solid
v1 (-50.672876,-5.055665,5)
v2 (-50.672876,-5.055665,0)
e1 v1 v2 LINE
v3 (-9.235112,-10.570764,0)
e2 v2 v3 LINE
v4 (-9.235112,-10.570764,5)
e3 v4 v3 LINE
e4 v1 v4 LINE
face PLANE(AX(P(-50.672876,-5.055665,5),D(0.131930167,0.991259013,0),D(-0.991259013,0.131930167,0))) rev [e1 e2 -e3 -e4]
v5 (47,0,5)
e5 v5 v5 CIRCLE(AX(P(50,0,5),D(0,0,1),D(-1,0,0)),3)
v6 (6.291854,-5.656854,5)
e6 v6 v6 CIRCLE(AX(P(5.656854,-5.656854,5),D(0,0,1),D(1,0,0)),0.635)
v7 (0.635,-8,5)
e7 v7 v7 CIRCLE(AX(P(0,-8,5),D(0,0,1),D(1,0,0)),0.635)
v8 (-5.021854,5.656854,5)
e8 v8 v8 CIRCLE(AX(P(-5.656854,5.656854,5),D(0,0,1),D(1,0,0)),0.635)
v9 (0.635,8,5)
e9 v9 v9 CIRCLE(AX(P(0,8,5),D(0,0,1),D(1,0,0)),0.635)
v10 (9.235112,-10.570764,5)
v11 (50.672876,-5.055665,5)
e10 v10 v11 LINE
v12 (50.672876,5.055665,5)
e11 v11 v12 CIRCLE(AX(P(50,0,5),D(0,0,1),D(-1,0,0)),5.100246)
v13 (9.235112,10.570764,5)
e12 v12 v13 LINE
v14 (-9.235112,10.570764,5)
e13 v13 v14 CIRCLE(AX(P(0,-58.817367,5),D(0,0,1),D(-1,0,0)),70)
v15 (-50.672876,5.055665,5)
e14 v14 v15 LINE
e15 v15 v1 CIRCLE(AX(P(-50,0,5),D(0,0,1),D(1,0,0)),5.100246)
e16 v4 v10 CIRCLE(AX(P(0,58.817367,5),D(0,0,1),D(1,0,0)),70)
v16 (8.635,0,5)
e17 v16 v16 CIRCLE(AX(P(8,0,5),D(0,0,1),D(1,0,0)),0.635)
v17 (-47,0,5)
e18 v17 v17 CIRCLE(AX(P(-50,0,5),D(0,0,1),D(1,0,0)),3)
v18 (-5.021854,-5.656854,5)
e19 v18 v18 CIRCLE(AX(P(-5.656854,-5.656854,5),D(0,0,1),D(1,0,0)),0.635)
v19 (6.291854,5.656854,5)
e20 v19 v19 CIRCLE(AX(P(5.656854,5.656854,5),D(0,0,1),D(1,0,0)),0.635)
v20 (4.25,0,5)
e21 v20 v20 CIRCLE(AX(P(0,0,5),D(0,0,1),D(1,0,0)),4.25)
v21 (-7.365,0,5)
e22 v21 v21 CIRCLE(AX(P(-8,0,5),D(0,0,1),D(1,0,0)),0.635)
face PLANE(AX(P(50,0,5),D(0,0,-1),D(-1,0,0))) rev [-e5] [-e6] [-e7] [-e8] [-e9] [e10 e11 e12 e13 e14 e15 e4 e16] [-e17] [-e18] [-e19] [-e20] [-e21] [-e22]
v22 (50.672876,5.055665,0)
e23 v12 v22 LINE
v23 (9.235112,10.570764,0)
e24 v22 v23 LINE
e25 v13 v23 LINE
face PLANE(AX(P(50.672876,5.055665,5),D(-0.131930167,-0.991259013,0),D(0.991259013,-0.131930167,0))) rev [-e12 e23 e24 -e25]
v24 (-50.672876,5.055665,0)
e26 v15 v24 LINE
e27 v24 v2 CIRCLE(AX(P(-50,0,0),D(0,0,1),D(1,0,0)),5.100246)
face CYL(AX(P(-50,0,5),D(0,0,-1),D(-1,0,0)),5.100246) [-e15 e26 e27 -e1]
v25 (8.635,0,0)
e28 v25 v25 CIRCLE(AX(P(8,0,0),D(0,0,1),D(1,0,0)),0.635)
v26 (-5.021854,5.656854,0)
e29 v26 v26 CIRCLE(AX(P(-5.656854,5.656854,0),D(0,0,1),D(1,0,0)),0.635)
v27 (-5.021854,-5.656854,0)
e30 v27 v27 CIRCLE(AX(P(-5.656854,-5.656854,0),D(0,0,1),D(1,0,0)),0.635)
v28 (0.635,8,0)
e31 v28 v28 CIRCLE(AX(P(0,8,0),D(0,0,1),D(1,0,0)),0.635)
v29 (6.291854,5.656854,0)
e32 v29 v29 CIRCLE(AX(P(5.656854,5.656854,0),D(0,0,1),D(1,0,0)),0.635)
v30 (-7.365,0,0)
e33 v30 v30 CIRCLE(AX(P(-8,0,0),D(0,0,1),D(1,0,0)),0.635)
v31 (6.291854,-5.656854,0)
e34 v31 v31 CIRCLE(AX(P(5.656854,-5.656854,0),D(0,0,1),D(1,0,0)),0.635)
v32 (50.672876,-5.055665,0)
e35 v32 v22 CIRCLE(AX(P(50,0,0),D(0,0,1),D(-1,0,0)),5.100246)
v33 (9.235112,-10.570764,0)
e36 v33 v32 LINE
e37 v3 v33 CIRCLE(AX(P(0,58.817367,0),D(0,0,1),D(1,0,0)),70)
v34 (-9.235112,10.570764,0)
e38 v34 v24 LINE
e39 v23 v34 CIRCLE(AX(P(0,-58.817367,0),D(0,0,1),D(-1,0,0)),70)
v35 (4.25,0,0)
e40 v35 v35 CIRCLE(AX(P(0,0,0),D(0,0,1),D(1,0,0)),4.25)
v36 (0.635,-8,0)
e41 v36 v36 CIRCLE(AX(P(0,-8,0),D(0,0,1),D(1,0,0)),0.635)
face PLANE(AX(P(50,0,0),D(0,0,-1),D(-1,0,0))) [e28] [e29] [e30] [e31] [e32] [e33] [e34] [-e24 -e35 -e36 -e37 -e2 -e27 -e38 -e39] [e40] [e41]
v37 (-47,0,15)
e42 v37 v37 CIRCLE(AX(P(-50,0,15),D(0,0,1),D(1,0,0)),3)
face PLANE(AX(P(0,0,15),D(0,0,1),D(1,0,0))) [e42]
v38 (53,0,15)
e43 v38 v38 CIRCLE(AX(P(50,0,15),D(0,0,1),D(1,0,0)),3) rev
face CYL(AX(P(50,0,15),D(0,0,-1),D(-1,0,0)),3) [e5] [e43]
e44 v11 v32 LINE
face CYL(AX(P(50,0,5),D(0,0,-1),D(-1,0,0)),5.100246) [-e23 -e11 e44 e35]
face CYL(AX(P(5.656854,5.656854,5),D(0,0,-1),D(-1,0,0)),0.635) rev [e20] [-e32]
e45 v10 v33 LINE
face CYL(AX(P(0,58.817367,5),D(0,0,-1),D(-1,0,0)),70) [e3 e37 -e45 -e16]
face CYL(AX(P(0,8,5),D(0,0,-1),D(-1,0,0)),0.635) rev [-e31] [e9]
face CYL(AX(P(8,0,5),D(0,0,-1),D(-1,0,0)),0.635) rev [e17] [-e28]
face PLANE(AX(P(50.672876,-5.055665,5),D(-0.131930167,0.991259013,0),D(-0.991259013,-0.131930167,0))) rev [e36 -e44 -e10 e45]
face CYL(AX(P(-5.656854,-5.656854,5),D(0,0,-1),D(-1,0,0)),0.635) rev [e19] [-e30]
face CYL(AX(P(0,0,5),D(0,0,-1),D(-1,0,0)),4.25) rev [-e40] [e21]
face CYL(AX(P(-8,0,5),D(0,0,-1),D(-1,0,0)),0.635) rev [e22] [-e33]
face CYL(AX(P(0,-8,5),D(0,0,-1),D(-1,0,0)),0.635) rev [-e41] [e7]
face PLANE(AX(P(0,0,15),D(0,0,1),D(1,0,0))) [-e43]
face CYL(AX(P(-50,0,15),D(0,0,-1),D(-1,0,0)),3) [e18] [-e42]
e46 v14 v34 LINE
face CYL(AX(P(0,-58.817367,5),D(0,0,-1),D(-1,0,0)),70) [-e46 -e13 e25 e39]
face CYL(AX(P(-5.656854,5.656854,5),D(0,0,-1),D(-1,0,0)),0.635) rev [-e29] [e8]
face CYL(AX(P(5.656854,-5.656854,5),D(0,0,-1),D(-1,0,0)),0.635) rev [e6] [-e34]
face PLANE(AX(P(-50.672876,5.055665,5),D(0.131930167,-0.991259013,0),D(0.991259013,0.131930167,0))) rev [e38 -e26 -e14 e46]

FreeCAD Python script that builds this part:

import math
import FreeCAD as App
import Part
import Sketcher
from FreeCAD import Vector

doc = App.newDocument("Part")
body = doc.addObject("PartDesign::Body", "Body")

sketch1 = doc.addObject("Sketcher::SketchObject", "Sketch")
body.addObject(sketch1)
sketch1.AttachmentSupport = (doc.XY_Plane, [""])
sketch1.MapMode = "FlatFace"
sketch1.addGeometry([
    Part.LineSegment(Vector(-9.2, 10.6, 0), Vector(-50.7, 5.1, 0)),
    Part.ArcOfCircle(Part.Circle(Vector(-50, 0, 0), Vector(0, 0, 1), 5.1), math.radians(98), math.radians(262)),
    Part.LineSegment(Vector(-50.7, -5.1, 0), Vector(-9.2, -10.6, 0)),
    Part.ArcOfCircle(Part.Circle(Vector(0, 58.8, 0), Vector(0, 0, 1), 70), math.radians(-97.58), math.radians(-82.42)),
    Part.LineSegment(Vector(9.2, -10.6, 0), Vector(50.7, -5.1, 0)),
    Part.ArcOfCircle(Part.Circle(Vector(50, 0, 0), Vector(0, 0, 1), 5.1), math.radians(-82), math.radians(82)),
    Part.LineSegment(Vector(50.7, 5.1, 0), Vector(9.2, 10.6, 0)),
    Part.ArcOfCircle(Part.Circle(Vector(0, -58.8, 0), Vector(0, 0, 1), 70), math.radians(82.42), math.radians(97.58)),
    Part.Circle(Vector(5.7, -5.7, 0), Vector(0, 0, 1), 0.6),
    Part.Circle(Vector(0, -8, 0), Vector(0, 0, 1), 0.6),
    Part.Circle(Vector(-5.7, -5.7, 0), Vector(0, 0, 1), 0.6),
    Part.Circle(Vector(50, 0, 0), Vector(0, 0, 1), 3),
    Part.Circle(Vector(8, 0, 0), Vector(0, 0, 1), 0.6),
    Part.Circle(Vector(5.7, 5.7, 0), Vector(0, 0, 1), 0.6),
    Part.Circle(Vector(0, 0, 0), Vector(0, 0, 1), 4.2),
    Part.Circle(Vector(-8, 0, 0), Vector(0, 0, 1), 0.6),
    Part.Circle(Vector(-50, 0, 0), Vector(0, 0, 1), 3),
    Part.Circle(Vector(-5.7, 5.7, 0), Vector(0, 0, 1), 0.6),
    Part.Circle(Vector(0, 8, 0), Vector(0, 0, 1), 0.6),
], False)
sketch1.addConstraint([
    Sketcher.Constraint("Tangent", 0, 2, 1, 1),
    Sketcher.Constraint("Tangent", 1, 2, 2, 1),
    Sketcher.Constraint("Tangent", 2, 2, 3, 1),
    Sketcher.Constraint("Tangent", 3, 2, 4, 1),
    Sketcher.Constraint("Tangent", 4, 2, 5, 1),
    Sketcher.Constraint("Tangent", 5, 2, 6, 1),
    Sketcher.Constraint("Tangent", 6, 2, 7, 1),
    Sketcher.Constraint("Tangent", 7, 2, 0, 1),
    Sketcher.Constraint("Coincident", 14, 3, -1, 1),
    Sketcher.Constraint("Coincident", 11, 3, 5, 3),
    Sketcher.Constraint("Coincident", 16, 3, 1, 3),
    Sketcher.Constraint("Equal", 1, 5),
    Sketcher.Constraint("Equal", 3, 7),
    Sketcher.Constraint("Equal", 8, 9),
    Sketcher.Constraint("Equal", 9, 10),
    Sketcher.Constraint("Equal", 10, 12),
    Sketcher.Constraint("Equal", 12, 13),
    Sketcher.Constraint("Equal", 13, 15),
    Sketcher.Constraint("Equal", 11, 16),
    Sketcher.Constraint("Equal", 15, 17),
    Sketcher.Constraint("Equal", 17, 18),
    Sketcher.Constraint("Symmetric", 1, 3, 5, 3, -1, 1),
    Sketcher.Constraint("Symmetric", 3, 3, 7, 3, -1, 1),
    Sketcher.Constraint("Symmetric", 10, 3, 13, 3, -1, 1),
    Sketcher.Constraint("Symmetric", 12, 3, 15, 3, -1, 1),
    Sketcher.Constraint("Symmetric", 8, 3, 17, 3, -1, 1),
    Sketcher.Constraint("Symmetric", 9, 3, 18, 3, -1, 1),
    Sketcher.Constraint("Symmetric", 8, 3, 10, 3, -2),
    Sketcher.Constraint("Symmetric", 2, 2, 3, 2, -2),
    Sketcher.Constraint("PointOnObject", 9, 3, -2),
    Sketcher.Constraint("PointOnObject", 12, 3, -1),
    Sketcher.Constraint("Diameter", 11, 6.0),
    Sketcher.Constraint("Radius", 3, 70.0),
    Sketcher.Constraint("Diameter", 14, 8.5),
    Sketcher.Constraint("Diameter", 8, 1.27),
    Sketcher.Constraint("DistanceX", 1, 3, -1, 1, 50.0),
    Sketcher.Constraint("DistanceY", 9, 3, -1, 1, 8.0),
    Sketcher.Constraint("DistanceX", -1, 1, 12, 3, 8.0),
    Sketcher.Constraint("Radius", 1, 5.100246),
    Sketcher.Constraint("DistanceY", 3, 2, 4, 2, 5.515099),
    Sketcher.Constraint("DistanceY", 8, 3, 3, 3, 64.474221),
    Sketcher.Constraint("DistanceX", 10, 3, 8, 3, 11.313708),
])
pad1 = doc.addObject("PartDesign::Pad", "Pad")
body.addObject(pad1)
pad1.Profile = sketch1
pad1.Length = 5

sketch2 = doc.addObject("Sketcher::SketchObject", "Sketch001")
body.addObject(sketch2)
sketch2.AttachmentSupport = (doc.XY_Plane, [""])
sketch2.MapMode = "FlatFace"
sketch2.addGeometry([
    Part.Circle(Vector(-50, 0, 0), Vector(0, 0, 1), 3),
    Part.Circle(Vector(50, 0, 0), Vector(0, 0, 1), 3),
], False)
sketch2.addConstraint([
    Sketcher.Constraint("Equal", 0, 1),
    Sketcher.Constraint("Symmetric", 0, 3, 1, 3, -1, 1),
    Sketcher.Constraint("PointOnObject", 0, 3, -1),
    Sketcher.Constraint("Diameter", 0, 6.0),
    Sketcher.Constraint("DistanceX", 0, 3, -1, 1, 50.0),
])
pad2 = doc.addObject("PartDesign::Pad", "Pad001")
body.addObject(pad2)
pad2.Profile = sketch2
pad2.Length = 15

doc.recompute()
